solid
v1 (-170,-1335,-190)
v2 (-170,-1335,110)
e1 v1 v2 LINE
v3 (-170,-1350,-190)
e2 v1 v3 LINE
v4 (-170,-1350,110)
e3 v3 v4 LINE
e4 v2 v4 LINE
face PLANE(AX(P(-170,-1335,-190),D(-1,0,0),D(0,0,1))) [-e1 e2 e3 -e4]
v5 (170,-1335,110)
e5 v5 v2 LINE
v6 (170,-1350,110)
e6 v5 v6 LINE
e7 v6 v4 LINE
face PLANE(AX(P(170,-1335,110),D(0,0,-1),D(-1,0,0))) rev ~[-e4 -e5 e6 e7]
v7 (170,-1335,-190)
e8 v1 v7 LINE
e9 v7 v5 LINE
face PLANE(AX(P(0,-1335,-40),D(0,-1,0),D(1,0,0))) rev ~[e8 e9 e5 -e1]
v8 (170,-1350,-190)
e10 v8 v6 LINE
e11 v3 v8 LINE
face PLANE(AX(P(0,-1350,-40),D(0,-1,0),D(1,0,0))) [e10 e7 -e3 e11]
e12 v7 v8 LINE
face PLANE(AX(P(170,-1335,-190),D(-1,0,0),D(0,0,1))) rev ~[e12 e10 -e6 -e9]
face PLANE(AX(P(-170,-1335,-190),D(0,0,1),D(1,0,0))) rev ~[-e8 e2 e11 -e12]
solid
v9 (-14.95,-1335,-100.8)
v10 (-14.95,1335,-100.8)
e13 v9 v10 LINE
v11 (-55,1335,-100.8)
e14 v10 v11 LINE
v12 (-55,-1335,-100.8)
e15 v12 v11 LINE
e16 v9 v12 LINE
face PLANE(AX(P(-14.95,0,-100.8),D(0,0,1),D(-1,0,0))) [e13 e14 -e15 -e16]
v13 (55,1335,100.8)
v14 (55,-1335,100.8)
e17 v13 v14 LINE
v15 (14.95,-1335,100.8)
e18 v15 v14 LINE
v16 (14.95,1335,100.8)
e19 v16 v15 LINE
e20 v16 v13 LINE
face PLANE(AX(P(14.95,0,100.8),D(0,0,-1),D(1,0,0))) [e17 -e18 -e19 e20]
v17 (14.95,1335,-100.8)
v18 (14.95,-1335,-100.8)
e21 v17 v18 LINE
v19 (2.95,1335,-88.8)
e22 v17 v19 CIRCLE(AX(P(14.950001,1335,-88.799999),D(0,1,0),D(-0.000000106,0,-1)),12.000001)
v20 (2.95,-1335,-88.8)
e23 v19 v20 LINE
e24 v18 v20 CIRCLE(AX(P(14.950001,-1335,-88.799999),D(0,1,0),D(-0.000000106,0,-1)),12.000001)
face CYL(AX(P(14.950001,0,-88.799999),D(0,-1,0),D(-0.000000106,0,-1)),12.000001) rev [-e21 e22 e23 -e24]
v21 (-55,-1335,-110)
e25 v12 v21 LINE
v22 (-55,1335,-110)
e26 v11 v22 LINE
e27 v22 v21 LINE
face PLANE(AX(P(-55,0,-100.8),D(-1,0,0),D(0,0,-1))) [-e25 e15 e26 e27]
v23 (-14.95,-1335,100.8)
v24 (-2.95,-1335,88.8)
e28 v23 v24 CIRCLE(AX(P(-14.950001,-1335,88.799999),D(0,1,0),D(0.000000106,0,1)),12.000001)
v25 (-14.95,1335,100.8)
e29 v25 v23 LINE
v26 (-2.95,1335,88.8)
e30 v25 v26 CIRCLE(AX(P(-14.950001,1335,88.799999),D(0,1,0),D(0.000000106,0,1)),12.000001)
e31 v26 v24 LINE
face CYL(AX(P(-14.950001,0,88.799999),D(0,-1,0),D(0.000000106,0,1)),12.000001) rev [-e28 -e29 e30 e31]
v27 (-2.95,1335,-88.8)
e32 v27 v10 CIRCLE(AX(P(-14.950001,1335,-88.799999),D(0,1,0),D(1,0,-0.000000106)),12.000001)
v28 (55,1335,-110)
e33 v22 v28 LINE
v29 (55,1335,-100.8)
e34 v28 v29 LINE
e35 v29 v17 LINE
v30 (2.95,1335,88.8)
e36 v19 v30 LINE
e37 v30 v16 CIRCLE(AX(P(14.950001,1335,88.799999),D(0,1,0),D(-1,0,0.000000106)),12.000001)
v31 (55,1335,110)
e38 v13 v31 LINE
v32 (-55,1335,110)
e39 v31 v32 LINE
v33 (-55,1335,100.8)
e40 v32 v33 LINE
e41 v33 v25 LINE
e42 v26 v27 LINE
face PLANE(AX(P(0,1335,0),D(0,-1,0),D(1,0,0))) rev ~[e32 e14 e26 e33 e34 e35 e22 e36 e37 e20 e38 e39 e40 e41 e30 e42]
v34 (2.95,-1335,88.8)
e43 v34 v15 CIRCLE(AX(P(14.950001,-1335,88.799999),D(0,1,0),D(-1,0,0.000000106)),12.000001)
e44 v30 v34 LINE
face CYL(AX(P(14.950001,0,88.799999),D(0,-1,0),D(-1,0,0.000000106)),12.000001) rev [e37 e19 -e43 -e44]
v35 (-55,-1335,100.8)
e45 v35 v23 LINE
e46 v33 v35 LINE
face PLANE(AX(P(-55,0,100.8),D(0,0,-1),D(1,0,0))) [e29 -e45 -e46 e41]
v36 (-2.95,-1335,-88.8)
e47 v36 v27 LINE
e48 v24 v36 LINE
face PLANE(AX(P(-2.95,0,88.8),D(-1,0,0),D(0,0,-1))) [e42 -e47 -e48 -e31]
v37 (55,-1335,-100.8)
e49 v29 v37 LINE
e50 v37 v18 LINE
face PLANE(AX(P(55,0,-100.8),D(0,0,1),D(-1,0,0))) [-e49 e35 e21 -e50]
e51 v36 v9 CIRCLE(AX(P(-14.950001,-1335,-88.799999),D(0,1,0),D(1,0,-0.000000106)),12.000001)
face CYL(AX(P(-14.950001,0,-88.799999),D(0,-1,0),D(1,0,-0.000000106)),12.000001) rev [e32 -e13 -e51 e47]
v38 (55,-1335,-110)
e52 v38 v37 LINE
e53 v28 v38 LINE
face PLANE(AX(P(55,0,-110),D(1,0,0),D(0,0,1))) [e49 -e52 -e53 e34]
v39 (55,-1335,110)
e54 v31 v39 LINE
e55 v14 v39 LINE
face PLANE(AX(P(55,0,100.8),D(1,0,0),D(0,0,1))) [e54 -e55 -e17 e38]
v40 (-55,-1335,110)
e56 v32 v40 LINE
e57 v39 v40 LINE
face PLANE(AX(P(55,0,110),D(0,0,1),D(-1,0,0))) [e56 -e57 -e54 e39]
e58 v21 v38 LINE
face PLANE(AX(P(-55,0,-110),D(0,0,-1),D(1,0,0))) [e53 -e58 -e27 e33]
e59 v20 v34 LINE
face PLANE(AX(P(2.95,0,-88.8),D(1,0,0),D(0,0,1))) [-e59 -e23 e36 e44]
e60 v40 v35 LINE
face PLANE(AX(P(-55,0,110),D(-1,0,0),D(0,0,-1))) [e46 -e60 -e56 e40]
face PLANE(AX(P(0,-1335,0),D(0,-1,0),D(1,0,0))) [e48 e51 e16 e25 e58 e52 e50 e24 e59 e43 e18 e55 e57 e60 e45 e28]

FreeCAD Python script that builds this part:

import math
import FreeCAD as App
import Part
import Sketcher


def add_polygon(sketch, points):
    """Adds a closed chain of lines whose ends are joined by coincident constraints."""
    first, n = sketch.GeometryCount, len(points)
    for a, b in zip(points, points[1:] + points[:1]):
        sketch.addGeometry(Part.LineSegment(App.Vector(*a, 0), App.Vector(*b, 0)), False)
    for i in range(n):
        sketch.addConstraint(Sketcher.Constraint("Coincident", first + i, 2, first + (i + 1) % n, 1))

doc = App.newDocument("Part")
params = doc.addObject("Spreadsheet::Sheet", "Params")
for row, (alias, value) in enumerate([
    ("sketch1_radius", "12.000001 mm"),
    ("sketch1_width", "110 mm"),
    ("sketch1_height", "9.2 mm"),
    ("sketch1_height2", "177.6 mm"),
    ("sketch1_width2", "40.05 mm"),
    ("pad1_length", "2670 mm"),
    ("sketch2_width", "340 mm"),
    ("sketch2_height", "300 mm"),
    ("pad2_length", "15 mm"),
], start=1):
    params.set(f"A{row}", alias)
    params.set(f"B{row}", "=" + value)
    params.setAlias(f"B{row}", alias)

body = doc.addObject("PartDesign::Body", "Body")

# Sketch on XZ plane
sketch1 = body.newObject("Sketcher::SketchObject", "Sketch")
sketch1.AttachmentSupport = (doc.getObject("XZ_Plane"), [""])
sketch1.MapMode = "FlatFace"
sketch1.addGeometry([
    Part.LineSegment(App.Vector(-55, -101, 0), App.Vector(-55, -110, 0)),  # 0
    Part.LineSegment(App.Vector(-55, -110, 0), App.Vector(55, -110, 0)),  # 1
    Part.LineSegment(App.Vector(55, -110, 0), App.Vector(55, -101, 0)),  # 2
    Part.LineSegment(App.Vector(55, -101, 0), App.Vector(15, -101, 0)),  # 3
    Part.ArcOfCircle(Part.Circle(App.Vector(15, -89, 0), App.Vector(0, 0, 1), 12), math.radians(-180), math.radians(-90)),  # 4
    Part.LineSegment(App.Vector(3, -89, 0), App.Vector(3, 89, 0)),  # 5
    Part.ArcOfCircle(Part.Circle(App.Vector(15, 89, 0), App.Vector(0, 0, 1), 12), math.radians(90), math.radians(180)),  # 6
    Part.LineSegment(App.Vector(15, 101, 0), App.Vector(55, 101, 0)),  # 7
    Part.LineSegment(App.Vector(55, 101, 0), App.Vector(55, 110, 0)),  # 8
    Part.LineSegment(App.Vector(55, 110, 0), App.Vector(-55, 110, 0)),  # 9
    Part.LineSegment(App.Vector(-55, 110, 0), App.Vector(-55, 101, 0)),  # 10
    Part.LineSegment(App.Vector(-55, 101, 0), App.Vector(-15, 101, 0)),  # 11
    Part.ArcOfCircle(Part.Circle(App.Vector(-15, 89, 0), App.Vector(0, 0, 1), 12), math.radians(0), math.radians(90)),  # 12
    Part.LineSegment(App.Vector(-3, 89, 0), App.Vector(-3, -89, 0)),  # 13
    Part.ArcOfCircle(Part.Circle(App.Vector(-15, -89, 0), App.Vector(0, 0, 1), 12), math.radians(-90), math.radians(0)),  # 14
    Part.LineSegment(App.Vector(-15, -101, 0), App.Vector(-55, -101, 0)),  # 15
], False)
sketch1.addConstraint([
    Sketcher.Constraint("Coincident", 0, 2, 1, 1),
    Sketcher.Constraint("Coincident", 1, 2, 2, 1),
    Sketcher.Constraint("Coincident", 2, 2, 3, 1),
    Sketcher.Constraint("Tangent", 3, 2, 4, 2),
    Sketcher.Constraint("Tangent", 4, 1, 5, 1),
    Sketcher.Constraint("Tangent", 5, 2, 6, 2),
    Sketcher.Constraint("Tangent", 6, 1, 7, 1),
    Sketcher.Constraint("Coincident", 7, 2, 8, 1),
    Sketcher.Constraint("Coincident", 8, 2, 9, 1),
    Sketcher.Constraint("Coincident", 9, 2, 10, 1),
    Sketcher.Constraint("Coincident", 10, 2, 11, 1),
    Sketcher.Constraint("Tangent", 11, 2, 12, 2),
    Sketcher.Constraint("Tangent", 12, 1, 13, 1),
    Sketcher.Constraint("Tangent", 13, 2, 14, 2),
    Sketcher.Constraint("Tangent", 14, 1, 15, 1),
    Sketcher.Constraint("Coincident", 15, 2, 0, 1),
    Sketcher.Constraint("Vertical", 0),
    Sketcher.Constraint("Horizontal", 1),
    Sketcher.Constraint("Vertical", 2),
    Sketcher.Constraint("Horizontal", 3),
    Sketcher.Constraint("Vertical", 5),
    Sketcher.Constraint("Horizontal", 7),
    Sketcher.Constraint("Vertical", 8),
    Sketcher.Constraint("Horizontal", 9),
    Sketcher.Constraint("Vertical", 10),
    Sketcher.Constraint("Horizontal", 11),
    Sketcher.Constraint("Vertical", 13),
    Sketcher.Constraint("Horizontal", 15),
    Sketcher.Constraint("Equal", 4, 6),
    Sketcher.Constraint("Equal", 6, 12),
    Sketcher.Constraint("Equal", 12, 14),
    Sketcher.Constraint("Symmetric", 4, 3, 12, 3, -1, 1),
    Sketcher.Constraint("Symmetric", 0, 2, 8, 2, -1, 1),
    Sketcher.Constraint("Symmetric", 7, 2, 10, 2, -2),
    Sketcher.Constraint("Symmetric", 2, 2, 15, 2, -2),
    Sketcher.Constraint("Radius", 4, 12.000001),
    Sketcher.Constraint("DistanceX", 1, 1, 1, 2, 110.0),
    Sketcher.Constraint("DistanceY", 0, 2, 0, 1, 9.2),
    Sketcher.Constraint("DistanceY", 5, 1, 5, 2, 177.6),
    Sketcher.Constraint("DistanceX", 3, 2, 3, 1, 40.05),
])
sketch1.setExpression("Constraints[35]", "Params.sketch1_radius")
sketch1.setExpression("Constraints[36]", "Params.sketch1_width")
sketch1.setExpression("Constraints[37]", "Params.sketch1_height")
sketch1.setExpression("Constraints[38]", "Params.sketch1_height2")
sketch1.setExpression("Constraints[39]", "Params.sketch1_width2")
pad1 = body.newObject("PartDesign::Pad", "Pad")
pad1.Profile = sketch1
pad1.setExpression("Length", "Params.pad1_length")
pad1.Midplane = True
body2 = doc.addObject("PartDesign::Body", "Body001")

# Sketch on XZ plane
sketch2 = body2.newObject("Sketcher::SketchObject", "Sketch001")
sketch2.AttachmentSupport = (doc.getObject("XZ_Plane001"), [""])
sketch2.MapMode = "FlatFace"
sketch2.AttachmentOffset = App.Placement(App.Vector(0, 0, 1335), App.Rotation())
add_polygon(sketch2, [(-170, 110), (-170, -190), (170, -190), (170, 110)])  # lines 0-3
sketch2.addConstraint([
    Sketcher.Constraint("Vertical", 0),
    Sketcher.Constraint("Horizontal", 1),
    Sketcher.Constraint("Vertical", 2),
    Sketcher.Constraint("Horizontal", 3),
    Sketcher.Constraint("DistanceX", 1, 1, 1, 2, 340.0),
    Sketcher.Constraint("DistanceY", 0, 2, 0, 1, 300.0),
    Sketcher.Constraint("DistanceX", 0, 2, -1, 1, 170.0),
    Sketcher.Constraint("DistanceY", 0, 2, -1, 1, 190.0),
])
sketch2.setExpression("Constraints[8]", "Params.sketch2_width")
sketch2.setExpression("Constraints[9]", "Params.sketch2_height")
pad2 = body2.newObject("PartDesign::Pad", "Pad001")
pad2.Profile = sketch2
pad2.setExpression("Length", "Params.pad2_length")

doc.recompute()
